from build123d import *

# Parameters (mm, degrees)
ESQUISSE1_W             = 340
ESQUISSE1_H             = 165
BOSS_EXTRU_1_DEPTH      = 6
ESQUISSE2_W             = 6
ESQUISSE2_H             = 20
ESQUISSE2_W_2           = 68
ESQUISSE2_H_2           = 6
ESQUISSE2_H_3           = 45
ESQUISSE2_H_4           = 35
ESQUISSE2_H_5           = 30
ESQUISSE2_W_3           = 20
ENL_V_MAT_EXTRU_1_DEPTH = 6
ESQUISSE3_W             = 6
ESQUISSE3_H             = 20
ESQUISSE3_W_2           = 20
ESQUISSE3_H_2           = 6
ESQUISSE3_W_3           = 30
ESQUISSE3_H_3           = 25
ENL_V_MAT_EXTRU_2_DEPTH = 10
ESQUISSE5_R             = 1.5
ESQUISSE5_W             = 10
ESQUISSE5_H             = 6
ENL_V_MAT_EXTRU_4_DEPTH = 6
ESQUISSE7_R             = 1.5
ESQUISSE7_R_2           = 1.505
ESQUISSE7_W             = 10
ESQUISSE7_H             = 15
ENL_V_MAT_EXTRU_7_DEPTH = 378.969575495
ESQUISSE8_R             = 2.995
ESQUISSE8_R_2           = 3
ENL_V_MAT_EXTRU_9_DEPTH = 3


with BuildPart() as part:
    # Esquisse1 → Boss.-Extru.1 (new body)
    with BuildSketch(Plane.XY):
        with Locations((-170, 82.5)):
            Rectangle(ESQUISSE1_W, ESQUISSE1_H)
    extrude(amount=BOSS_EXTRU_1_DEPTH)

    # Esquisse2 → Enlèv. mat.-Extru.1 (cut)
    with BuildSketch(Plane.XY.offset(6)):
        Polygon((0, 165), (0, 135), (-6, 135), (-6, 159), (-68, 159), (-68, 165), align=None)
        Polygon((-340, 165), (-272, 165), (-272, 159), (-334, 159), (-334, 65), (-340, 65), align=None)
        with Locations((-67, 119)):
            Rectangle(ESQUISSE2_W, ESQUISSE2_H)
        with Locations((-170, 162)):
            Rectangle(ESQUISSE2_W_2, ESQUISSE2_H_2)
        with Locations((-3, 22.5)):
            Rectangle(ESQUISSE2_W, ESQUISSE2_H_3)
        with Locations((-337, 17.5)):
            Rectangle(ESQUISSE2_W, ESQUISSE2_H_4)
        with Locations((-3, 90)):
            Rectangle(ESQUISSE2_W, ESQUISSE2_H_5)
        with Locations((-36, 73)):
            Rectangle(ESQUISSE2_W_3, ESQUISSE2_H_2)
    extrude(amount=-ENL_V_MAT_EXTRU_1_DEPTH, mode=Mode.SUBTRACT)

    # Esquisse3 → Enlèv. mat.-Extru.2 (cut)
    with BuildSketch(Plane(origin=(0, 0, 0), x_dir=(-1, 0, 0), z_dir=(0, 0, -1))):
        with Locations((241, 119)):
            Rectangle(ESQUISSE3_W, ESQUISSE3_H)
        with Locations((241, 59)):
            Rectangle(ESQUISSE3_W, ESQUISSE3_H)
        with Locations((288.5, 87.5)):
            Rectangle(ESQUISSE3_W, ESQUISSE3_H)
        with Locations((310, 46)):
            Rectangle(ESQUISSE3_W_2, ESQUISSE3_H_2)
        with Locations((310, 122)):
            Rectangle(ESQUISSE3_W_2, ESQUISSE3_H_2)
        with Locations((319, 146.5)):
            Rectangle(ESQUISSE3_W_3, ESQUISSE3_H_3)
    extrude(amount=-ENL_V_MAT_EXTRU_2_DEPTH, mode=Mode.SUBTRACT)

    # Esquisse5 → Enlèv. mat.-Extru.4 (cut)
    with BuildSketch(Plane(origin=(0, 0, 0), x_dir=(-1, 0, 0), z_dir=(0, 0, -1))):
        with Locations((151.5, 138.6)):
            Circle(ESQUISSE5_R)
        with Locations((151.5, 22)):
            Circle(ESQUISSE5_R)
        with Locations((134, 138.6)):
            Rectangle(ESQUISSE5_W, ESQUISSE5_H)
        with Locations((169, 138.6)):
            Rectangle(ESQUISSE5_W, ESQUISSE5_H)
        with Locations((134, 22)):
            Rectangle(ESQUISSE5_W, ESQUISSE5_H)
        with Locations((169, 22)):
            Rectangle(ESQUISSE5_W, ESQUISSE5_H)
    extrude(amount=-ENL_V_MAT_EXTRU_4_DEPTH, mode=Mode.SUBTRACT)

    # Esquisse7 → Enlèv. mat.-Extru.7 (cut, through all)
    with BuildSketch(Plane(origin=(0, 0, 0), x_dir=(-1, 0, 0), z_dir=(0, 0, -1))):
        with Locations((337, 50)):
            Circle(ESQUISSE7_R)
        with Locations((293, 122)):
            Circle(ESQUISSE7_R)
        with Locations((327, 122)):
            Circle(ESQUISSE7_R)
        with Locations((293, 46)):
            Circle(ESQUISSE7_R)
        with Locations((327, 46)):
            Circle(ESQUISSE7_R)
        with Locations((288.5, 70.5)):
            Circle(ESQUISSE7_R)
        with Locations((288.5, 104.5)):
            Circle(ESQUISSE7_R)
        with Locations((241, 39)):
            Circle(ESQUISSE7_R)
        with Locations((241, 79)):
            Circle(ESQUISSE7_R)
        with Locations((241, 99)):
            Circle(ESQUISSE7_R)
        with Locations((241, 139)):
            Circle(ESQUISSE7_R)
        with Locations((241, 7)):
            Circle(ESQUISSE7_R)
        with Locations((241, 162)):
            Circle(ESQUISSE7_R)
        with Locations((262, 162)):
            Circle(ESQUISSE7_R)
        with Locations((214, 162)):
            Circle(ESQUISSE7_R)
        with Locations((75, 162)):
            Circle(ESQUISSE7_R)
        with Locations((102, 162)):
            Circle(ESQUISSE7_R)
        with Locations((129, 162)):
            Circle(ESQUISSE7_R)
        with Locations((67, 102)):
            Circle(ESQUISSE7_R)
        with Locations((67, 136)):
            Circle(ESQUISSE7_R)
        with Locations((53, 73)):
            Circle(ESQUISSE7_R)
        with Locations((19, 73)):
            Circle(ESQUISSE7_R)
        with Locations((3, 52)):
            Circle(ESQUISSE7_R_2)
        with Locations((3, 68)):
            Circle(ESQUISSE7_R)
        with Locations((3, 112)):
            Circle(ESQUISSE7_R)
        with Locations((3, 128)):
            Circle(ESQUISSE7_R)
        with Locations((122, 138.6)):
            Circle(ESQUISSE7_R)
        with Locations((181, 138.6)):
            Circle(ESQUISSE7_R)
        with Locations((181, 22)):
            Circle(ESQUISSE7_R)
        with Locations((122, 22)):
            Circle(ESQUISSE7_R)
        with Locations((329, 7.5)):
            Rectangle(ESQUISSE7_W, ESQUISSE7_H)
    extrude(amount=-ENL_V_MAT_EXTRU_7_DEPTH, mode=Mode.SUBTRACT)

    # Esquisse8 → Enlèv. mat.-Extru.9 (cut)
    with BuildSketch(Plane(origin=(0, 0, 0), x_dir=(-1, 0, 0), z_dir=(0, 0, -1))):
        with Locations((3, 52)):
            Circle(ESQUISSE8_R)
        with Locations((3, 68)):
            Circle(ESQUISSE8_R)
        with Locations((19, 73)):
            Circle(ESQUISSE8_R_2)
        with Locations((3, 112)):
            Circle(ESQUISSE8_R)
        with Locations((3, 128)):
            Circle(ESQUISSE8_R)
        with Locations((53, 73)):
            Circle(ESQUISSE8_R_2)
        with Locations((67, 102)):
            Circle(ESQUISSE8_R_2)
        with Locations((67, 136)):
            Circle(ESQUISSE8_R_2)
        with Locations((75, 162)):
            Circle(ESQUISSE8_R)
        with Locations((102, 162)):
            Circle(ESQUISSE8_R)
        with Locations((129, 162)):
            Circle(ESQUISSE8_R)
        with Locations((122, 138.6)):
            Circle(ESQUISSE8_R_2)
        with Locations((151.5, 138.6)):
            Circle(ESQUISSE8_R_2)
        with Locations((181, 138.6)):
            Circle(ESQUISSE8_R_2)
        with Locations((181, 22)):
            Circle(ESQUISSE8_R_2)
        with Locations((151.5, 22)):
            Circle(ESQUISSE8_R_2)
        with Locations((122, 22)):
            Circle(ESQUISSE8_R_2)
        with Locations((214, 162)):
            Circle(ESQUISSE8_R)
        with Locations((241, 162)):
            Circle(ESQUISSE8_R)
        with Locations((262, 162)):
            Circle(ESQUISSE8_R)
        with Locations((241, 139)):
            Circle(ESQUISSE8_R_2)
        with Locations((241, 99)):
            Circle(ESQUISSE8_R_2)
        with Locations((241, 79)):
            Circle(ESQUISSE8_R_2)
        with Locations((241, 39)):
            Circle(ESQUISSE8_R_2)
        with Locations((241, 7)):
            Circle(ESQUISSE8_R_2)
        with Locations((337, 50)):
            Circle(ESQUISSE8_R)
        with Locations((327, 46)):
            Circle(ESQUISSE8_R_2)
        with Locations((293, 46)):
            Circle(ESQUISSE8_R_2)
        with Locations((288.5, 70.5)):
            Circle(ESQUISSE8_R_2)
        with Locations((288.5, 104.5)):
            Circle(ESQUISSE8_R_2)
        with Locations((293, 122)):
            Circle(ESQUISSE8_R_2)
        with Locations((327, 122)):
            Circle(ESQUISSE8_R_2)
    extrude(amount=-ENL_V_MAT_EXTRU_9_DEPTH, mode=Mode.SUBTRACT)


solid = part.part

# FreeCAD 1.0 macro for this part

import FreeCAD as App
import Part
import Sketcher

V = App.Vector
Q = App.Units.Quantity

doc = App.newDocument("Part")
body = doc.addObject("PartDesign::Body", "Body")

sketch1 = body.newObject("Sketcher::SketchObject", "Sketch")
sketch1.AttachmentSupport = (doc.getObject("XY_Plane"), [""])
sketch1.MapMode = "FlatFace"
sketch1.addGeometry([
    Part.LineSegment(V(-340, 165, 0), V(-340, 0, 0)),
    Part.LineSegment(V(-340, 0, 0), V(0, 0, 0)),
    Part.LineSegment(V(0, 0, 0), V(0, 165, 0)),
    Part.LineSegment(V(0, 165, 0), V(-340, 165, 0)),
], False)
sketch1.addConstraint([
    Sketcher.Constraint("Coincident", 0, 2, 1, 1),
    Sketcher.Constraint("Coincident", 1, 2, 2, 1),
    Sketcher.Constraint("Coincident", 2, 2, 3, 1),
    Sketcher.Constraint("Coincident", 3, 2, 0, 1),
    Sketcher.Constraint("Vertical", 0),
    Sketcher.Constraint("Horizontal", 1),
    Sketcher.Constraint("Vertical", 2),
    Sketcher.Constraint("Horizontal", 3),
    Sketcher.Constraint("Coincident", 1, 2, -1, 1),
    Sketcher.Constraint("DistanceX", 1, 1, 1, 2, Q("340 mm")),
    Sketcher.Constraint("DistanceY", 0, 2, 0, 1, Q("165 mm")),
])
pad1 = body.newObject("PartDesign::Pad", "Pad")
pad1.Profile = sketch1
pad1.Length = 6

sketch2 = body.newObject("Sketcher::SketchObject", "Sketch001")
sketch2.AttachmentSupport = (doc.getObject("XY_Plane"), [""])
sketch2.MapMode = "FlatFace"
sketch2.AttachmentOffset = App.Placement(V(0, 0, 6), App.Rotation())
sketch2.addGeometry([
    Part.LineSegment(V(0, 135, 0), V(0, 165, 0)),
    Part.LineSegment(V(0, 165, 0), V(-68, 165, 0)),
    Part.LineSegment(V(-68, 165, 0), V(-68, 159, 0)),
    Part.LineSegment(V(-68, 159, 0), V(-6, 159, 0)),
    Part.LineSegment(V(-6, 159, 0), V(-6, 135, 0)),
    Part.LineSegment(V(-6, 135, 0), V(0, 135, 0)),
    Part.LineSegment(V(-272, 165, 0), V(-340, 165, 0)),
    Part.LineSegment(V(-340, 165, 0), V(-340, 65, 0)),
    Part.LineSegment(V(-340, 65, 0), V(-334, 65, 0)),
    Part.LineSegment(V(-334, 65, 0), V(-334, 159, 0)),
    Part.LineSegment(V(-334, 159, 0), V(-272, 159, 0)),
    Part.LineSegment(V(-272, 159, 0), V(-272, 165, 0)),
    Part.LineSegment(V(-70, 129, 0), V(-70, 109, 0)),
    Part.LineSegment(V(-70, 109, 0), V(-64, 109, 0)),
    Part.LineSegment(V(-64, 109, 0), V(-64, 129, 0)),
    Part.LineSegment(V(-64, 129, 0), V(-70, 129, 0)),
    Part.LineSegment(V(-204, 165, 0), V(-204, 159, 0)),
    Part.LineSegment(V(-204, 159, 0), V(-136, 159, 0)),
    Part.LineSegment(V(-136, 159, 0), V(-136, 165, 0)),
    Part.LineSegment(V(-136, 165, 0), V(-204, 165, 0)),
    Part.LineSegment(V(-6, 45, 0), V(-6, 0, 0)),
    Part.LineSegment(V(-6, 0, 0), V(0, 0, 0)),
    Part.LineSegment(V(0, 0, 0), V(0, 45, 0)),
    Part.LineSegment(V(0, 45, 0), V(-6, 45, 0)),
    Part.LineSegment(V(-340, 35, 0), V(-340, 0, 0)),
    Part.LineSegment(V(-340, 0, 0), V(-334, 0, 0)),
    Part.LineSegment(V(-334, 0, 0), V(-334, 35, 0)),
    Part.LineSegment(V(-334, 35, 0), V(-340, 35, 0)),
    Part.LineSegment(V(-6, 105, 0), V(-6, 75, 0)),
    Part.LineSegment(V(-6, 75, 0), V(0, 75, 0)),
    Part.LineSegment(V(0, 75, 0), V(0, 105, 0)),
    Part.LineSegment(V(0, 105, 0), V(-6, 105, 0)),
    Part.LineSegment(V(-46, 76, 0), V(-46, 70, 0)),
    Part.LineSegment(V(-46, 70, 0), V(-26, 70, 0)),
    Part.LineSegment(V(-26, 70, 0), V(-26, 76, 0)),
    Part.LineSegment(V(-26, 76, 0), V(-46, 76, 0)),
], False)
sketch2.addConstraint([
    Sketcher.Constraint("Coincident", 0, 2, 1, 1),
    Sketcher.Constraint("Coincident", 1, 2, 2, 1),
    Sketcher.Constraint("Coincident", 2, 2, 3, 1),
    Sketcher.Constraint("Coincident", 3, 2, 4, 1),
    Sketcher.Constraint("Coincident", 4, 2, 5, 1),
    Sketcher.Constraint("Coincident", 5, 2, 0, 1),
    Sketcher.Constraint("Coincident", 6, 2, 7, 1),
    Sketcher.Constraint("Coincident", 7, 2, 8, 1),
    Sketcher.Constraint("Coincident", 8, 2, 9, 1),
    Sketcher.Constraint("Coincident", 9, 2, 10, 1),
    Sketcher.Constraint("Coincident", 10, 2, 11, 1),
    Sketcher.Constraint("Coincident", 11, 2, 6, 1),
    Sketcher.Constraint("Coincident", 12, 2, 13, 1),
    Sketcher.Constraint("Coincident", 13, 2, 14, 1),
    Sketcher.Constraint("Coincident", 14, 2, 15, 1),
    Sketcher.Constraint("Coincident", 15, 2, 12, 1),
    Sketcher.Constraint("Coincident", 16, 2, 17, 1),
    Sketcher.Constraint("Coincident", 17, 2, 18, 1),
    Sketcher.Constraint("Coincident", 18, 2, 19, 1),
    Sketcher.Constraint("Coincident", 19, 2, 16, 1),
    Sketcher.Constraint("Coincident", 20, 2, 21, 1),
    Sketcher.Constraint("Coincident", 21, 2, 22, 1),
    Sketcher.Constraint("Coincident", 22, 2, 23, 1),
    Sketcher.Constraint("Coincident", 23, 2, 20, 1),
    Sketcher.Constraint("Coincident", 24, 2, 25, 1),
    Sketcher.Constraint("Coincident", 25, 2, 26, 1),
    Sketcher.Constraint("Coincident", 26, 2, 27, 1),
    Sketcher.Constraint("Coincident", 27, 2, 24, 1),
    Sketcher.Constraint("Coincident", 28, 2, 29, 1),
    Sketcher.Constraint("Coincident", 29, 2, 30, 1),
    Sketcher.Constraint("Coincident", 30, 2, 31, 1),
    Sketcher.Constraint("Coincident", 31, 2, 28, 1),
    Sketcher.Constraint("Coincident", 32, 2, 33, 1),
    Sketcher.Constraint("Coincident", 33, 2, 34, 1),
    Sketcher.Constraint("Coincident", 34, 2, 35, 1),
    Sketcher.Constraint("Coincident", 35, 2, 32, 1),
    Sketcher.Constraint("Vertical", 0),
    Sketcher.Constraint("Horizontal", 1),
    Sketcher.Constraint("Vertical", 2),
    Sketcher.Constraint("Horizontal", 3),
    Sketcher.Constraint("Vertical", 4),
    Sketcher.Constraint("Horizontal", 5),
    Sketcher.Constraint("Horizontal", 6),
    Sketcher.Constraint("Vertical", 7),
    Sketcher.Constraint("Horizontal", 8),
    Sketcher.Constraint("Vertical", 9),
    Sketcher.Constraint("Horizontal", 10),
    Sketcher.Constraint("Vertical", 11),
    Sketcher.Constraint("Vertical", 12),
    Sketcher.Constraint("Horizontal", 13),
    Sketcher.Constraint("Vertical", 14),
    Sketcher.Constraint("Horizontal", 15),
    Sketcher.Constraint("Vertical", 16),
    Sketcher.Constraint("Horizontal", 17),
    Sketcher.Constraint("Vertical", 18),
    Sketcher.Constraint("Horizontal", 19),
    Sketcher.Constraint("Vertical", 20),
    Sketcher.Constraint("Horizontal", 21),
    Sketcher.Constraint("Vertical", 22),
    Sketcher.Constraint("Horizontal", 23),
    Sketcher.Constraint("Vertical", 24),
    Sketcher.Constraint("Horizontal", 25),
    Sketcher.Constraint("Vertical", 26),
    Sketcher.Constraint("Horizontal", 27),
    Sketcher.Constraint("Vertical", 28),
    Sketcher.Constraint("Horizontal", 29),
    Sketcher.Constraint("Vertical", 30),
    Sketcher.Constraint("Horizontal", 31),
    Sketcher.Constraint("Vertical", 32),
    Sketcher.Constraint("Horizontal", 33),
    Sketcher.Constraint("Vertical", 34),
    Sketcher.Constraint("Horizontal", 35),
    Sketcher.Constraint("Coincident", 21, 2, -1, 1),
    Sketcher.Constraint("PointOnObject", 0, 2, -2),
    Sketcher.Constraint("PointOnObject", 24, 2, -1),
    Sketcher.Constraint("PointOnObject", 29, 2, -2),
    Sketcher.Constraint("Horizontal", 1, 2, 6, 2),
    Sketcher.Constraint("Horizontal", 3, 2, 9, 2),
    Sketcher.Constraint("Horizontal", 10, 2, 16, 2),
    Sketcher.Constraint("Horizontal", 11, 2, 18, 2),
    Sketcher.Constraint("Vertical", 4, 2, 20, 2),
    Sketcher.Constraint("Vertical", 7, 2, 24, 2),
    Sketcher.Constraint("Vertical", 9, 2, 25, 2),
    Sketcher.Constraint("Vertical", 23, 2, 28, 2),
    Sketcher.Constraint("Equal", 1, 6),
    Sketcher.Constraint("Equal", 5, 8),
    Sketcher.Constraint("Equal", 8, 13),
    Sketcher.Constraint("Equal", 6, 17),
    Sketcher.Constraint("Equal", 31, 2),
    Sketcher.Constraint("Equal", 35, 12),
    Sketcher.Constraint("Equal", 0, 28),
    Sketcher.Constraint("Equal", 18, 32),
    Sketcher.Constraint("DistanceX", 1, 2, 1, 1, Q("68 mm")),
    Sketcher.Constraint("DistanceX", 3, 1, 3, 2, Q("62 mm")),
    Sketcher.Constraint("DistanceX", 33, 1, 33, 2, Q("20 mm")),
    Sketcher.Constraint("DistanceY", 0, 1, 0, 2, Q("30 mm")),
    Sketcher.Constraint("DistanceY", 7, 2, 7, 1, Q("100 mm")),
    Sketcher.Constraint("DistanceY", 20, 2, 20, 1, Q("45 mm")),
    Sketcher.Constraint("DistanceY", 24, 2, 24, 1, Q("35 mm")),
    Sketcher.Constraint("DistanceY", -1, 1, 0, 2, Q("165 mm")),
    Sketcher.Constraint("DistanceX", 6, 2, -1, 1, Q("340 mm")),
    Sketcher.Constraint("DistanceX", 12, 2, -1, 1, Q("70 mm")),
    Sketcher.Constraint("DistanceY", -1, 1, 12, 2, Q("109 mm")),
    Sketcher.Constraint("DistanceX", 16, 2, -1, 1, Q("204 mm")),
    Sketcher.Constraint("DistanceY", -1, 1, 28, 2, Q("75 mm")),
    Sketcher.Constraint("DistanceX", 32, 2, -1, 1, Q("46 mm")),
    Sketcher.Constraint("DistanceY", -1, 1, 32, 2, Q("70 mm")),
])
pocket1 = body.newObject("PartDesign::Pocket", "Pocket")
pocket1.Profile = sketch2
pocket1.Length = 6

sketch3 = body.newObject("Sketcher::SketchObject", "Sketch002")
sketch3.AttachmentSupport = (doc.getObject("XY_Plane"), [""])
sketch3.MapMode = "FlatFace"
sketch3.addGeometry([
    Part.LineSegment(V(-238, 129, 0), V(-238, 109, 0)),
    Part.LineSegment(V(-238, 109, 0), V(-244, 109, 0)),
    Part.LineSegment(V(-244, 109, 0), V(-244, 129, 0)),
    Part.LineSegment(V(-244, 129, 0), V(-238, 129, 0)),
    Part.LineSegment(V(-238, 69, 0), V(-238, 49, 0)),
    Part.LineSegment(V(-238, 49, 0), V(-244, 49, 0)),
    Part.LineSegment(V(-244, 49, 0), V(-244, 69, 0)),
    Part.LineSegment(V(-244, 69, 0), V(-238, 69, 0)),
    Part.LineSegment(V(-285.5, 97.5, 0), V(-285.5, 77.5, 0)),
    Part.LineSegment(V(-285.5, 77.5, 0), V(-291.5, 77.5, 0)),
    Part.LineSegment(V(-291.5, 77.5, 0), V(-291.5, 97.5, 0)),
    Part.LineSegment(V(-291.5, 97.5, 0), V(-285.5, 97.5, 0)),
    Part.LineSegment(V(-300, 49, 0), V(-300, 43, 0)),
    Part.LineSegment(V(-300, 43, 0), V(-320, 43, 0)),
    Part.LineSegment(V(-320, 43, 0), V(-320, 49, 0)),
    Part.LineSegment(V(-320, 49, 0), V(-300, 49, 0)),
    Part.LineSegment(V(-300, 125, 0), V(-300, 119, 0)),
    Part.LineSegment(V(-300, 119, 0), V(-320, 119, 0)),
    Part.LineSegment(V(-320, 119, 0), V(-320, 125, 0)),
    Part.LineSegment(V(-320, 125, 0), V(-300, 125, 0)),
    Part.LineSegment(V(-304, 159, 0), V(-304, 134, 0)),
    Part.LineSegment(V(-304, 134, 0), V(-334, 134, 0)),
    Part.LineSegment(V(-334, 134, 0), V(-334, 159, 0)),
    Part.LineSegment(V(-334, 159, 0), V(-304, 159, 0)),
], False)
sketch3.addConstraint([
    Sketcher.Constraint("Coincident", 0, 2, 1, 1),
    Sketcher.Constraint("Coincident", 1, 2, 2, 1),
    Sketcher.Constraint("Coincident", 2, 2, 3, 1),
    Sketcher.Constraint("Coincident", 3, 2, 0, 1),
    Sketcher.Constraint("Coincident", 4, 2, 5, 1),
    Sketcher.Constraint("Coincident", 5, 2, 6, 1),
    Sketcher.Constraint("Coincident", 6, 2, 7, 1),
    Sketcher.Constraint("Coincident", 7, 2, 4, 1),
    Sketcher.Constraint("Coincident", 8, 2, 9, 1),
    Sketcher.Constraint("Coincident", 9, 2, 10, 1),
    Sketcher.Constraint("Coincident", 10, 2, 11, 1),
    Sketcher.Constraint("Coincident", 11, 2, 8, 1),
    Sketcher.Constraint("Coincident", 12, 2, 13, 1),
    Sketcher.Constraint("Coincident", 13, 2, 14, 1),
    Sketcher.Constraint("Coincident", 14, 2, 15, 1),
    Sketcher.Constraint("Coincident", 15, 2, 12, 1),
    Sketcher.Constraint("Coincident", 16, 2, 17, 1),
    Sketcher.Constraint("Coincident", 17, 2, 18, 1),
    Sketcher.Constraint("Coincident", 18, 2, 19, 1),
    Sketcher.Constraint("Coincident", 19, 2, 16, 1),
    Sketcher.Constraint("Coincident", 20, 2, 21, 1),
    Sketcher.Constraint("Coincident", 21, 2, 22, 1),
    Sketcher.Constraint("Coincident", 22, 2, 23, 1),
    Sketcher.Constraint("Coincident", 23, 2, 20, 1),
    Sketcher.Constraint("Vertical", 0),
    Sketcher.Constraint("Horizontal", 1),
    Sketcher.Constraint("Vertical", 2),
    Sketcher.Constraint("Horizontal", 3),
    Sketcher.Constraint("Vertical", 4),
    Sketcher.Constraint("Horizontal", 5),
    Sketcher.Constraint("Vertical", 6),
    Sketcher.Constraint("Horizontal", 7),
    Sketcher.Constraint("Vertical", 8),
    Sketcher.Constraint("Horizontal", 9),
    Sketcher.Constraint("Vertical", 10),
    Sketcher.Constraint("Horizontal", 11),
    Sketcher.Constraint("Vertical", 12),
    Sketcher.Constraint("Horizontal", 13),
    Sketcher.Constraint("Vertical", 14),
    Sketcher.Constraint("Horizontal", 15),
    Sketcher.Constraint("Vertical", 16),
    Sketcher.Constraint("Horizontal", 17),
    Sketcher.Constraint("Vertical", 18),
    Sketcher.Constraint("Horizontal", 19),
    Sketcher.Constraint("Vertical", 20),
    Sketcher.Constraint("Horizontal", 21),
    Sketcher.Constraint("Vertical", 22),
    Sketcher.Constraint("Horizontal", 23),
    Sketcher.Constraint("Horizontal", 5, 2, 14, 2),
    Sketcher.Constraint("Vertical", 3, 2, 4, 2),
    Sketcher.Constraint("Vertical", 2, 2, 5, 2),
    Sketcher.Constraint("Vertical", 15, 2, 16, 2),
    Sketcher.Constraint("Vertical", 14, 2, 17, 2),
    Sketcher.Constraint("Equal", 7, 9),
    Sketcher.Constraint("Equal", 19, 0),
    Sketcher.Constraint("Equal", 2, 4),
    Sketcher.Constraint("Equal", 6, 8),
    Sketcher.Constraint("Equal", 11, 12),
    Sketcher.Constraint("Equal", 14, 16),
    Sketcher.Constraint("DistanceX", 1, 2, 1, 1, Q("6 mm")),
    Sketcher.Constraint("DistanceX", 13, 2, 13, 1, Q("20 mm")),
    Sketcher.Constraint("DistanceX", 21, 2, 21, 1, Q("30 mm")),
    Sketcher.Constraint("DistanceY", 20, 2, 20, 1, Q("25 mm")),
    Sketcher.Constraint("DistanceX", 0, 2, -1, 1, Q("238 mm")),
    Sketcher.Constraint("DistanceY", -1, 1, 0, 2, Q("109 mm")),
    Sketcher.Constraint("DistanceY", -1, 1, 4, 2, Q("49 mm")),
    Sketcher.Constraint("DistanceX", 12, 2, -1, 1, Q("300 mm")),
    Sketcher.Constraint("DistanceY", -1, 1, 16, 2, Q("119 mm")),
    Sketcher.Constraint("DistanceX", 20, 2, -1, 1, Q("304 mm")),
    Sketcher.Constraint("DistanceY", -1, 1, 20, 2, Q("134 mm")),
    Sketcher.Constraint("DistanceX", 8, 2, -1, 1, Q("285.5 mm")),
    Sketcher.Constraint("DistanceY", -1, 1, 8, 2, Q("77.5 mm")),
])
pocket2 = body.newObject("PartDesign::Pocket", "Pocket001")
pocket2.Profile = sketch3
pocket2.Length = 10
pocket2.Reversed = True

sketch4 = body.newObject("Sketcher::SketchObject", "Sketch003")
sketch4.AttachmentSupport = (doc.getObject("XY_Plane"), [""])
sketch4.MapMode = "FlatFace"
sketch4.addGeometry([
    Part.Circle(V(-151.5, 138.6, 0), V(0, 0, 1), 1.5),
    Part.Circle(V(-151.5, 22, 0), V(0, 0, 1), 1.5),
    Part.LineSegment(V(-129, 141.6, 0), V(-129, 135.6, 0)),
    Part.LineSegment(V(-129, 135.6, 0), V(-139, 135.6, 0)),
    Part.LineSegment(V(-139, 135.6, 0), V(-139, 141.6, 0)),
    Part.LineSegment(V(-139, 141.6, 0), V(-129, 141.6, 0)),
    Part.LineSegment(V(-164, 141.6, 0), V(-164, 135.6, 0)),
    Part.LineSegment(V(-164, 135.6, 0), V(-174, 135.6, 0)),
    Part.LineSegment(V(-174, 135.6, 0), V(-174, 141.6, 0)),
    Part.LineSegment(V(-174, 141.6, 0), V(-164, 141.6, 0)),
    Part.LineSegment(V(-129, 25, 0), V(-129, 19, 0)),
    Part.LineSegment(V(-129, 19, 0), V(-139, 19, 0)),
    Part.LineSegment(V(-139, 19, 0), V(-139, 25, 0)),
    Part.LineSegment(V(-139, 25, 0), V(-129, 25, 0)),
    Part.LineSegment(V(-164, 25, 0), V(-164, 19, 0)),
    Part.LineSegment(V(-164, 19, 0), V(-174, 19, 0)),
    Part.LineSegment(V(-174, 19, 0), V(-174, 25, 0)),
    Part.LineSegment(V(-174, 25, 0), V(-164, 25, 0)),
], False)
sketch4.addConstraint([
    Sketcher.Constraint("Coincident", 2, 2, 3, 1),
    Sketcher.Constraint("Coincident", 3, 2, 4, 1),
    Sketcher.Constraint("Coincident", 4, 2, 5, 1),
    Sketcher.Constraint("Coincident", 5, 2, 2, 1),
    Sketcher.Constraint("Coincident", 6, 2, 7, 1),
    Sketcher.Constraint("Coincident", 7, 2, 8, 1),
    Sketcher.Constraint("Coincident", 8, 2, 9, 1),
    Sketcher.Constraint("Coincident", 9, 2, 6, 1),
    Sketcher.Constraint("Coincident", 10, 2, 11, 1),
    Sketcher.Constraint("Coincident", 11, 2, 12, 1),
    Sketcher.Constraint("Coincident", 12, 2, 13, 1),
    Sketcher.Constraint("Coincident", 13, 2, 10, 1),
    Sketcher.Constraint("Coincident", 14, 2, 15, 1),
    Sketcher.Constraint("Coincident", 15, 2, 16, 1),
    Sketcher.Constraint("Coincident", 16, 2, 17, 1),
    Sketcher.Constraint("Coincident", 17, 2, 14, 1),
    Sketcher.Constraint("Vertical", 2),
    Sketcher.Constraint("Horizontal", 3),
    Sketcher.Constraint("Vertical", 4),
    Sketcher.Constraint("Horizontal", 5),
    Sketcher.Constraint("Vertical", 6),
    Sketcher.Constraint("Horizontal", 7),
    Sketcher.Constraint("Vertical", 8),
    Sketcher.Constraint("Horizontal", 9),
    Sketcher.Constraint("Vertical", 10),
    Sketcher.Constraint("Horizontal", 11),
    Sketcher.Constraint("Vertical", 12),
    Sketcher.Constraint("Horizontal", 13),
    Sketcher.Constraint("Vertical", 14),
    Sketcher.Constraint("Horizontal", 15),
    Sketcher.Constraint("Vertical", 16),
    Sketcher.Constraint("Horizontal", 17),
    Sketcher.Constraint("Equal", 0, 1),
    Sketcher.Constraint("Horizontal", 3, 2, 6, 2),
    Sketcher.Constraint("Horizontal", 5, 2, 8, 2),
    Sketcher.Constraint("Horizontal", 11, 2, 14, 2),
    Sketcher.Constraint("Horizontal", 13, 2, 16, 2),
    Sketcher.Constraint("Vertical", 0, 3, 1, 3),
    Sketcher.Constraint("Vertical", 5, 2, 10, 2),
    Sketcher.Constraint("Vertical", 4, 2, 11, 2),
    Sketcher.Constraint("Vertical", 9, 2, 14, 2),
    Sketcher.Constraint("Vertical", 8, 2, 15, 2),
    Sketcher.Constraint("Equal", 5, 7),
    Sketcher.Constraint("Equal", 8, 10),
    Sketcher.Constraint("Diameter", 0, Q("3 mm")),
    Sketcher.Constraint("DistanceX", 3, 2, 3, 1, Q("10 mm")),
    Sketcher.Constraint("DistanceY", 2, 2, 2, 1, Q("6 mm")),
    Sketcher.Constraint("DistanceY", -1, 1, 1, 3, Q("22 mm")),
    Sketcher.Constraint("DistanceX", 2, 2, -1, 1, Q("129 mm")),
    Sketcher.Constraint("DistanceX", 6, 2, -1, 1, Q("164 mm")),
    Sketcher.Constraint("DistanceY", -1, 1, 10, 2, Q("19 mm")),
    Sketcher.Constraint("DistanceY", 2, 2, 0, 3, Q("3 mm")),
    Sketcher.Constraint("DistanceX", 0, 3, -1, 1, Q("151.5 mm")),
    Sketcher.Constraint("DistanceY", -1, 1, 0, 3, Q("138.6 mm")),
])
pocket3 = body.newObject("PartDesign::Pocket", "Pocket002")
pocket3.Profile = sketch4
pocket3.Length = 6
pocket3.Reversed = True

sketch5 = body.newObject("Sketcher::SketchObject", "Sketch004")
sketch5.AttachmentSupport = (doc.getObject("XY_Plane"), [""])
sketch5.MapMode = "FlatFace"
sketch5.addGeometry([
    Part.Circle(V(-337, 50, 0), V(0, 0, 1), 1.5),
    Part.Circle(V(-293, 122, 0), V(0, 0, 1), 1.5),
    Part.Circle(V(-327, 122, 0), V(0, 0, 1), 1.5),
    Part.Circle(V(-293, 46, 0), V(0, 0, 1), 1.5),
    Part.Circle(V(-327, 46, 0), V(0, 0, 1), 1.5),
    Part.Circle(V(-288.5, 70.5, 0), V(0, 0, 1), 1.5),
    Part.Circle(V(-288.5, 104.5, 0), V(0, 0, 1), 1.5),
    Part.Circle(V(-241, 39, 0), V(0, 0, 1), 1.5),
    Part.Circle(V(-241, 79, 0), V(0, 0, 1), 1.5),
    Part.Circle(V(-241, 99, 0), V(0, 0, 1), 1.5),
    Part.Circle(V(-241, 139, 0), V(0, 0, 1), 1.5),
    Part.Circle(V(-241, 7, 0), V(0, 0, 1), 1.5),
    Part.Circle(V(-241, 162, 0), V(0, 0, 1), 1.5),
    Part.Circle(V(-262, 162, 0), V(0, 0, 1), 1.5),
    Part.Circle(V(-214, 162, 0), V(0, 0, 1), 1.5),
    Part.Circle(V(-75, 162, 0), V(0, 0, 1), 1.5),
    Part.Circle(V(-102, 162, 0), V(0, 0, 1), 1.5),
    Part.Circle(V(-129, 162, 0), V(0, 0, 1), 1.5),
    Part.Circle(V(-67, 102, 0), V(0, 0, 1), 1.5),
    Part.Circle(V(-67, 136, 0), V(0, 0, 1), 1.5),
    Part.Circle(V(-53, 73, 0), V(0, 0, 1), 1.5),
    Part.Circle(V(-19, 73, 0), V(0, 0, 1), 1.5),
    Part.Circle(V(-3, 52, 0), V(0, 0, 1), 1.505),
    Part.Circle(V(-3, 68, 0), V(0, 0, 1), 1.5),
    Part.Circle(V(-3, 112, 0), V(0, 0, 1), 1.5),
    Part.Circle(V(-3, 128, 0), V(0, 0, 1), 1.5),
    Part.Circle(V(-122, 138.6, 0), V(0, 0, 1), 1.5),
    Part.Circle(V(-181, 138.6, 0), V(0, 0, 1), 1.5),
    Part.Circle(V(-181, 22, 0), V(0, 0, 1), 1.5),
    Part.Circle(V(-122, 22, 0), V(0, 0, 1), 1.5),
    Part.LineSegment(V(-324, 15, 0), V(-324, 0, 0)),
    Part.LineSegment(V(-324, 0, 0), V(-334, 0, 0)),
    Part.LineSegment(V(-334, 0, 0), V(-334, 15, 0)),
    Part.LineSegment(V(-334, 15, 0), V(-324, 15, 0)),
], False)
sketch5.addConstraint([
    Sketcher.Constraint("Coincident", 30, 2, 31, 1),
    Sketcher.Constraint("Coincident", 31, 2, 32, 1),
    Sketcher.Constraint("Coincident", 32, 2, 33, 1),
    Sketcher.Constraint("Coincident", 33, 2, 30, 1),
    Sketcher.Constraint("Vertical", 30),
    Sketcher.Constraint("Horizontal", 31),
    Sketcher.Constraint("Vertical", 32),
    Sketcher.Constraint("Horizontal", 33),
    Sketcher.Constraint("Equal", 0, 1),
    Sketcher.Constraint("Equal", 1, 2),
    Sketcher.Constraint("Equal", 2, 3),
    Sketcher.Constraint("Equal", 3, 4),
    Sketcher.Constraint("Equal", 4, 5),
    Sketcher.Constraint("Equal", 5, 6),
    Sketcher.Constraint("Equal", 6, 7),
    Sketcher.Constraint("Equal", 7, 8),
    Sketcher.Constraint("Equal", 8, 9),
    Sketcher.Constraint("Equal", 9, 10),
    Sketcher.Constraint("Equal", 10, 11),
    Sketcher.Constraint("Equal", 11, 12),
    Sketcher.Constraint("Equal", 12, 13),
    Sketcher.Constraint("Equal", 13, 14),
    Sketcher.Constraint("Equal", 14, 15),
    Sketcher.Constraint("Equal", 15, 16),
    Sketcher.Constraint("Equal", 16, 17),
    Sketcher.Constraint("Equal", 17, 18),
    Sketcher.Constraint("Equal", 18, 19),
    Sketcher.Constraint("Equal", 19, 20),
    Sketcher.Constraint("Equal", 20, 21),
    Sketcher.Constraint("Equal", 21, 23),
    Sketcher.Constraint("Equal", 23, 24),
    Sketcher.Constraint("Equal", 24, 25),
    Sketcher.Constraint("Equal", 25, 26),
    Sketcher.Constraint("Equal", 26, 27),
    Sketcher.Constraint("Equal", 27, 28),
    Sketcher.Constraint("Equal", 28, 29),
    Sketcher.Constraint("PointOnObject", 30, 2, -1),
    Sketcher.Constraint("Horizontal", 1, 3, 2, 3),
    Sketcher.Constraint("Horizontal", 3, 3, 4, 3),
    Sketcher.Constraint("Horizontal", 12, 3, 13, 3),
    Sketcher.Constraint("Horizontal", 13, 3, 14, 3),
    Sketcher.Constraint("Horizontal", 14, 3, 15, 3),
    Sketcher.Constraint("Horizontal", 15, 3, 16, 3),
    Sketcher.Constraint("Horizontal", 16, 3, 17, 3),
    Sketcher.Constraint("Horizontal", 20, 3, 21, 3),
    Sketcher.Constraint("Horizontal", 26, 3, 27, 3),
    Sketcher.Constraint("Horizontal", 28, 3, 29, 3),
    Sketcher.Constraint("Vertical", 1, 3, 3, 3),
    Sketcher.Constraint("Vertical", 2, 3, 4, 3),
    Sketcher.Constraint("Vertical", 5, 3, 6, 3),
    Sketcher.Constraint("Vertical", 7, 3, 8, 3),
    Sketcher.Constraint("Vertical", 8, 3, 9, 3),
    Sketcher.Constraint("Vertical", 9, 3, 10, 3),
    Sketcher.Constraint("Vertical", 10, 3, 11, 3),
    Sketcher.Constraint("Vertical", 11, 3, 12, 3),
    Sketcher.Constraint("Vertical", 18, 3, 19, 3),
    Sketcher.Constraint("Vertical", 22, 3, 23, 3),
    Sketcher.Constraint("Vertical", 23, 3, 24, 3),
    Sketcher.Constraint("Vertical", 24, 3, 25, 3),
    Sketcher.Constraint("Vertical", 27, 3, 28, 3),
    Sketcher.Constraint("Vertical", 26, 3, 29, 3),
    Sketcher.Constraint("Diameter", 0, Q("3 mm")),
    Sketcher.Constraint("Diameter", 22, Q("3.01 mm")),
    Sketcher.Constraint("DistanceX", 31, 2, 31, 1, Q("10 mm")),
    Sketcher.Constraint("DistanceY", 30, 2, 30, 1, Q("15 mm")),
    Sketcher.Constraint("DistanceX", 0, 3, -1, 1, Q("337 mm")),
    Sketcher.Constraint("DistanceY", -1, 1, 0, 3, Q("50 mm")),
    Sketcher.Constraint("DistanceX", 1, 3, -1, 1, Q("293 mm")),
    Sketcher.Constraint("DistanceY", -1, 1, 1, 3, Q("122 mm")),
    Sketcher.Constraint("DistanceX", 2, 3, -1, 1, Q("327 mm")),
    Sketcher.Constraint("DistanceY", -1, 1, 3, 3, Q("46 mm")),
    Sketcher.Constraint("DistanceX", 7, 3, -1, 1, Q("241 mm")),
    Sketcher.Constraint("DistanceY", -1, 1, 7, 3, Q("39 mm")),
    Sketcher.Constraint("DistanceY", -1, 1, 8, 3, Q("79 mm")),
    Sketcher.Constraint("DistanceY", -1, 1, 9, 3, Q("99 mm")),
    Sketcher.Constraint("DistanceY", -1, 1, 10, 3, Q("139 mm")),
    Sketcher.Constraint("DistanceY", -1, 1, 11, 3, Q("7 mm")),
    Sketcher.Constraint("DistanceY", -1, 1, 12, 3, Q("162 mm")),
    Sketcher.Constraint("DistanceX", 13, 3, -1, 1, Q("262 mm")),
    Sketcher.Constraint("DistanceX", 14, 3, -1, 1, Q("214 mm")),
    Sketcher.Constraint("DistanceX", 15, 3, -1, 1, Q("75 mm")),
    Sketcher.Constraint("DistanceX", 16, 3, -1, 1, Q("102 mm")),
    Sketcher.Constraint("DistanceX", 17, 3, -1, 1, Q("129 mm")),
    Sketcher.Constraint("DistanceX", 18, 3, -1, 1, Q("67 mm")),
    Sketcher.Constraint("DistanceY", -1, 1, 18, 3, Q("102 mm")),
    Sketcher.Constraint("DistanceY", -1, 1, 19, 3, Q("136 mm")),
    Sketcher.Constraint("DistanceX", 20, 3, -1, 1, Q("53 mm")),
    Sketcher.Constraint("DistanceY", -1, 1, 20, 3, Q("73 mm")),
    Sketcher.Constraint("DistanceX", 21, 3, -1, 1, Q("19 mm")),
    Sketcher.Constraint("DistanceX", 22, 3, -1, 1, Q("3 mm")),
    Sketcher.Constraint("DistanceY", -1, 1, 22, 3, Q("52 mm")),
    Sketcher.Constraint("DistanceY", -1, 1, 23, 3, Q("68 mm")),
    Sketcher.Constraint("DistanceY", -1, 1, 24, 3, Q("112 mm")),
    Sketcher.Constraint("DistanceY", -1, 1, 25, 3, Q("128 mm")),
    Sketcher.Constraint("DistanceX", 26, 3, -1, 1, Q("122 mm")),
    Sketcher.Constraint("DistanceX", 27, 3, -1, 1, Q("181 mm")),
    Sketcher.Constraint("DistanceY", -1, 1, 28, 3, Q("22 mm")),
    Sketcher.Constraint("DistanceX", 30, 2, -1, 1, Q("324 mm")),
    Sketcher.Constraint("DistanceY", 5, 3, 6, 3, Q("34 mm")),
    Sketcher.Constraint("DistanceX", 5, 3, -1, 1, Q("288.5 mm")),
    Sketcher.Constraint("DistanceY", -1, 1, 5, 3, Q("70.5 mm")),
    Sketcher.Constraint("DistanceY", -1, 1, 26, 3, Q("138.6 mm")),
])
pocket4 = body.newObject("PartDesign::Pocket", "Pocket003")
pocket4.Profile = sketch5
pocket4.Type = "ThroughAll"
pocket4.Reversed = True

sketch6 = body.newObject("Sketcher::SketchObject", "Sketch005")
sketch6.AttachmentSupport = (doc.getObject("XY_Plane"), [""])
sketch6.MapMode = "FlatFace"
sketch6.addGeometry([
    Part.Circle(V(-3, 52, 0), V(0, 0, 1), 2.995),
    Part.Circle(V(-3, 68, 0), V(0, 0, 1), 2.995),
    Part.Circle(V(-19, 73, 0), V(0, 0, 1), 3),
    Part.Circle(V(-3, 112, 0), V(0, 0, 1), 2.995),
    Part.Circle(V(-3, 128, 0), V(0, 0, 1), 2.995),
    Part.Circle(V(-53, 73, 0), V(0, 0, 1), 3),
    Part.Circle(V(-67, 102, 0), V(0, 0, 1), 3),
    Part.Circle(V(-67, 136, 0), V(0, 0, 1), 3),
    Part.Circle(V(-75, 162, 0), V(0, 0, 1), 2.995),
    Part.Circle(V(-102, 162, 0), V(0, 0, 1), 2.995),
    Part.Circle(V(-129, 162, 0), V(0, 0, 1), 2.995),
    Part.Circle(V(-122, 138.6, 0), V(0, 0, 1), 3),
    Part.Circle(V(-151.5, 138.6, 0), V(0, 0, 1), 3),
    Part.Circle(V(-181, 138.6, 0), V(0, 0, 1), 3),
    Part.Circle(V(-181, 22, 0), V(0, 0, 1), 3),
    Part.Circle(V(-151.5, 22, 0), V(0, 0, 1), 3),
    Part.Circle(V(-122, 22, 0), V(0, 0, 1), 3),
    Part.Circle(V(-214, 162, 0), V(0, 0, 1), 2.995),
    Part.Circle(V(-241, 162, 0), V(0, 0, 1), 2.995),
    Part.Circle(V(-262, 162, 0), V(0, 0, 1), 2.995),
    Part.Circle(V(-241, 139, 0), V(0, 0, 1), 3),
    Part.Circle(V(-241, 99, 0), V(0, 0, 1), 3),
    Part.Circle(V(-241, 79, 0), V(0, 0, 1), 3),
    Part.Circle(V(-241, 39, 0), V(0, 0, 1), 3),
    Part.Circle(V(-241, 7, 0), V(0, 0, 1), 3),
    Part.Circle(V(-337, 50, 0), V(0, 0, 1), 2.995),
    Part.Circle(V(-327, 46, 0), V(0, 0, 1), 3),
    Part.Circle(V(-293, 46, 0), V(0, 0, 1), 3),
    Part.Circle(V(-288.5, 70.5, 0), V(0, 0, 1), 3),
    Part.Circle(V(-288.5, 104.5, 0), V(0, 0, 1), 3),
    Part.Circle(V(-293, 122, 0), V(0, 0, 1), 3),
    Part.Circle(V(-327, 122, 0), V(0, 0, 1), 3),
], False)
sketch6.addConstraint([
    Sketcher.Constraint("Equal", 0, 1),
    Sketcher.Constraint("Equal", 1, 3),
    Sketcher.Constraint("Equal", 3, 4),
    Sketcher.Constraint("Equal", 2, 5),
    Sketcher.Constraint("Equal", 5, 6),
    Sketcher.Constraint("Equal", 6, 7),
    Sketcher.Constraint("Equal", 4, 8),
    Sketcher.Constraint("Equal", 8, 9),
    Sketcher.Constraint("Equal", 9, 10),
    Sketcher.Constraint("Equal", 7, 11),
    Sketcher.Constraint("Equal", 11, 12),
    Sketcher.Constraint("Equal", 12, 13),
    Sketcher.Constraint("Equal", 13, 14),
    Sketcher.Constraint("Equal", 14, 15),
    Sketcher.Constraint("Equal", 15, 16),
    Sketcher.Constraint("Equal", 10, 17),
    Sketcher.Constraint("Equal", 17, 18),
    Sketcher.Constraint("Equal", 18, 19),
    Sketcher.Constraint("Equal", 16, 20),
    Sketcher.Constraint("Equal", 20, 21),
    Sketcher.Constraint("Equal", 21, 22),
    Sketcher.Constraint("Equal", 22, 23),
    Sketcher.Constraint("Equal", 23, 24),
    Sketcher.Constraint("Equal", 19, 25),
    Sketcher.Constraint("Equal", 24, 26),
    Sketcher.Constraint("Equal", 26, 27),
    Sketcher.Constraint("Equal", 27, 28),
    Sketcher.Constraint("Equal", 28, 29),
    Sketcher.Constraint("Equal", 29, 30),
    Sketcher.Constraint("Equal", 30, 31),
    Sketcher.Constraint("Horizontal", 2, 3, 5, 3),
    Sketcher.Constraint("Horizontal", 8, 3, 9, 3),
    Sketcher.Constraint("Horizontal", 9, 3, 10, 3),
    Sketcher.Constraint("Horizontal", 11, 3, 12, 3),
    Sketcher.Constraint("Horizontal", 12, 3, 13, 3),
    Sketcher.Constraint("Horizontal", 14, 3, 15, 3),
    Sketcher.Constraint("Horizontal", 15, 3, 16, 3),
    Sketcher.Constraint("Horizontal", 10, 3, 17, 3),
    Sketcher.Constraint("Horizontal", 17, 3, 18, 3),
    Sketcher.Constraint("Horizontal", 18, 3, 19, 3),
    Sketcher.Constraint("Horizontal", 26, 3, 27, 3),
    Sketcher.Constraint("Horizontal", 30, 3, 31, 3),
    Sketcher.Constraint("Vertical", 0, 3, 1, 3),
    Sketcher.Constraint("Vertical", 1, 3, 3, 3),
    Sketcher.Constraint("Vertical", 3, 3, 4, 3),
    Sketcher.Constraint("Vertical", 6, 3, 7, 3),
    Sketcher.Constraint("Vertical", 13, 3, 14, 3),
    Sketcher.Constraint("Vertical", 12, 3, 15, 3),
    Sketcher.Constraint("Vertical", 11, 3, 16, 3),
    Sketcher.Constraint("Vertical", 18, 3, 20, 3),
    Sketcher.Constraint("Vertical", 20, 3, 21, 3),
    Sketcher.Constraint("Vertical", 21, 3, 22, 3),
    Sketcher.Constraint("Vertical", 22, 3, 23, 3),
    Sketcher.Constraint("Vertical", 23, 3, 24, 3),
    Sketcher.Constraint("Vertical", 28, 3, 29, 3),
    Sketcher.Constraint("Vertical", 27, 3, 30, 3),
    Sketcher.Constraint("Vertical", 26, 3, 31, 3),
    Sketcher.Constraint("Diameter", 2, Q("6 mm")),
    Sketcher.Constraint("Diameter", 0, Q("5.99 mm")),
    Sketcher.Constraint("DistanceX", 0, 3, -1, 1, Q("3 mm")),
    Sketcher.Constraint("DistanceY", -1, 1, 0, 3, Q("52 mm")),
    Sketcher.Constraint("DistanceY", -1, 1, 1, 3, Q("68 mm")),
    Sketcher.Constraint("DistanceX", 2, 3, -1, 1, Q("19 mm")),
    Sketcher.Constraint("DistanceY", -1, 1, 2, 3, Q("73 mm")),
    Sketcher.Constraint("DistanceY", -1, 1, 3, 3, Q("112 mm")),
    Sketcher.Constraint("DistanceY", -1, 1, 4, 3, Q("128 mm")),
    Sketcher.Constraint("DistanceX", 5, 3, -1, 1, Q("53 mm")),
    Sketcher.Constraint("DistanceX", 6, 3, -1, 1, Q("67 mm")),
    Sketcher.Constraint("DistanceY", -1, 1, 6, 3, Q("102 mm")),
    Sketcher.Constraint("DistanceY", -1, 1, 7, 3, Q("136 mm")),
    Sketcher.Constraint("DistanceX", 8, 3, -1, 1, Q("75 mm")),
    Sketcher.Constraint("DistanceY", -1, 1, 8, 3, Q("162 mm")),
    Sketcher.Constraint("DistanceX", 9, 3, -1, 1, Q("102 mm")),
    Sketcher.Constraint("DistanceX", 10, 3, -1, 1, Q("129 mm")),
    Sketcher.Constraint("DistanceX", 11, 3, -1, 1, Q("122 mm")),
    Sketcher.Constraint("DistanceX", 13, 3, -1, 1, Q("181 mm")),
    Sketcher.Constraint("DistanceY", -1, 1, 14, 3, Q("22 mm")),
    Sketcher.Constraint("DistanceX", 17, 3, -1, 1, Q("214 mm")),
    Sketcher.Constraint("DistanceX", 18, 3, -1, 1, Q("241 mm")),
    Sketcher.Constraint("DistanceX", 19, 3, -1, 1, Q("262 mm")),
    Sketcher.Constraint("DistanceY", -1, 1, 20, 3, Q("139 mm")),
    Sketcher.Constraint("DistanceY", -1, 1, 21, 3, Q("99 mm")),
    Sketcher.Constraint("DistanceY", -1, 1, 22, 3, Q("79 mm")),
    Sketcher.Constraint("DistanceY", -1, 1, 23, 3, Q("39 mm")),
    Sketcher.Constraint("DistanceY", -1, 1, 24, 3, Q("7 mm")),
    Sketcher.Constraint("DistanceX", 25, 3, -1, 1, Q("337 mm")),
    Sketcher.Constraint("DistanceY", -1, 1, 25, 3, Q("50 mm")),
    Sketcher.Constraint("DistanceX", 26, 3, -1, 1, Q("327 mm")),
    Sketcher.Constraint("DistanceY", -1, 1, 26, 3, Q("46 mm")),
    Sketcher.Constraint("DistanceX", 27, 3, -1, 1, Q("293 mm")),
    Sketcher.Constraint("DistanceY", -1, 1, 30, 3, Q("122 mm")),
    Sketcher.Constraint("DistanceY", 28, 3, 29, 3, Q("34 mm")),
    Sketcher.Constraint("DistanceY", -1, 1, 11, 3, Q("138.6 mm")),
    Sketcher.Constraint("DistanceX", 12, 3, -1, 1, Q("151.5 mm")),
    Sketcher.Constraint("DistanceX", 28, 3, -1, 1, Q("288.5 mm")),
    Sketcher.Constraint("DistanceY", -1, 1, 28, 3, Q("70.5 mm")),
])
pocket5 = body.newObject("PartDesign::Pocket", "Pocket004")
pocket5.Profile = sketch6
pocket5.Length = 3
pocket5.Reversed = True

doc.recompute()
